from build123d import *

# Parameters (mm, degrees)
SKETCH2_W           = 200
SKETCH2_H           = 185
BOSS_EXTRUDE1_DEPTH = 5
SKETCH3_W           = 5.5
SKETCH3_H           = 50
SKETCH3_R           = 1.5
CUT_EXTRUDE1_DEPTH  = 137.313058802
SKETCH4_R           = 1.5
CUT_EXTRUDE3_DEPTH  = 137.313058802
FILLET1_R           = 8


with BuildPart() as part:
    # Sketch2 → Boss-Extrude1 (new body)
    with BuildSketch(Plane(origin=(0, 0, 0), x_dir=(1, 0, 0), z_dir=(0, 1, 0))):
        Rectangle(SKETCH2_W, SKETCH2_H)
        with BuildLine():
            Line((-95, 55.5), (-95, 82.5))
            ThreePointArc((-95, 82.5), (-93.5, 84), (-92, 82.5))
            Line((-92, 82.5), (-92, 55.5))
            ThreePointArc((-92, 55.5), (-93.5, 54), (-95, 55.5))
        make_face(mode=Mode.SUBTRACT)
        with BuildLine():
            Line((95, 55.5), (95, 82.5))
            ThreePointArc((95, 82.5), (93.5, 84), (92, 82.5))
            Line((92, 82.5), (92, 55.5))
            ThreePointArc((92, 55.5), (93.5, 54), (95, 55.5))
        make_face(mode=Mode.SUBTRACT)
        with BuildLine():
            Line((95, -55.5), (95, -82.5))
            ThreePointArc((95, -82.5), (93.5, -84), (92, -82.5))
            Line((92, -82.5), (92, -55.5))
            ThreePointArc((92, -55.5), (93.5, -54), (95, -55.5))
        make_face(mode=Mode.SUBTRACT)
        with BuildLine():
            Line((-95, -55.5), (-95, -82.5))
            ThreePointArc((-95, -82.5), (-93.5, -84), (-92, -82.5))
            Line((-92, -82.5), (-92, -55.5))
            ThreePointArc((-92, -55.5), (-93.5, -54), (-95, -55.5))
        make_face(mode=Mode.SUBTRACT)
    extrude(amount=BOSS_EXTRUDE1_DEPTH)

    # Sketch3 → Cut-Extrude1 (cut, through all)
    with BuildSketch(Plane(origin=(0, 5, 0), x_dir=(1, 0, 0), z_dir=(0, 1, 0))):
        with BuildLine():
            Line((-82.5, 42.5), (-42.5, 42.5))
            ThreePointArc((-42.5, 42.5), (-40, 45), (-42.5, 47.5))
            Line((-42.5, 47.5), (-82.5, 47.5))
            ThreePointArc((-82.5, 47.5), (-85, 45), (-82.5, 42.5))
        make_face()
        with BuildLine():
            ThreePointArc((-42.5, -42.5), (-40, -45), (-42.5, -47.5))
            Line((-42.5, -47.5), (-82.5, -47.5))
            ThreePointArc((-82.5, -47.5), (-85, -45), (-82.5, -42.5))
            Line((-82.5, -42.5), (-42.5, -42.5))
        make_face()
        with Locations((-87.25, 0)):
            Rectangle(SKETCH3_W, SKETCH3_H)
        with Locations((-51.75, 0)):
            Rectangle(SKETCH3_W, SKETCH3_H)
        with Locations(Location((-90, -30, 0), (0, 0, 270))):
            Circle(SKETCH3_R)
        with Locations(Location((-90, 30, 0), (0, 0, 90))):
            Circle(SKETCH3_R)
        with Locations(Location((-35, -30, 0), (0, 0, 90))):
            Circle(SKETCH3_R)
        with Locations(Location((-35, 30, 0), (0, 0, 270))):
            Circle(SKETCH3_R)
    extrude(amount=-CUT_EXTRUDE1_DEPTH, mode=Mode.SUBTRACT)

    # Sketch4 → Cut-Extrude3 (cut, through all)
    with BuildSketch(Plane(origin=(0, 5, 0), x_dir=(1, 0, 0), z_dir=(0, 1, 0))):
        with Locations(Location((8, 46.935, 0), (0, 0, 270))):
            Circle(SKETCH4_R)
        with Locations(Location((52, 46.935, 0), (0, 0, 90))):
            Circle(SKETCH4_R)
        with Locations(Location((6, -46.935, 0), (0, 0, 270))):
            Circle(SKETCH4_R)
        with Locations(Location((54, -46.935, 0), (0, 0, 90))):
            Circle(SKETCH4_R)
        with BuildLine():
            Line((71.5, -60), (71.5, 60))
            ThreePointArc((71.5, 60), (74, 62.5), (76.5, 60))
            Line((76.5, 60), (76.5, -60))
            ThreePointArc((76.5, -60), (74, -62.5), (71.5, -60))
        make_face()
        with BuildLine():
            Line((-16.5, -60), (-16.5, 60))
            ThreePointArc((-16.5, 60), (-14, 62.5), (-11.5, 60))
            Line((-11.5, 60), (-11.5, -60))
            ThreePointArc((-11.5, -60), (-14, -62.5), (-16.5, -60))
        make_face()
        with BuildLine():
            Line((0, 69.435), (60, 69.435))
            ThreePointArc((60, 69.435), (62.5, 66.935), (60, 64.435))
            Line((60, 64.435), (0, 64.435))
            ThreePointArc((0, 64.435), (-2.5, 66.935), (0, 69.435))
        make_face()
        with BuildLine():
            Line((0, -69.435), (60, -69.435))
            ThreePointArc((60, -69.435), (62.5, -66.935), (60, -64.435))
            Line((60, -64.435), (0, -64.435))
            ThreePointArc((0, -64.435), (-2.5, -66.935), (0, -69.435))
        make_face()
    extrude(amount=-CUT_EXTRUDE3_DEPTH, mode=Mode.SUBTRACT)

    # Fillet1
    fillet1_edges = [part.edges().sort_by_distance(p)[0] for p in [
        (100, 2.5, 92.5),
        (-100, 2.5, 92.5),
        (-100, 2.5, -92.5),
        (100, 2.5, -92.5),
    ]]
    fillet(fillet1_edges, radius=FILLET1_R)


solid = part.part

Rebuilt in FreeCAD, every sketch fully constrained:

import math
import FreeCAD as App
import Part
import Sketcher

V = App.Vector
Q = App.Units.Quantity


def edges_at(feature, points):
    """Names of the edges that pass closest to the given points."""
    edges = feature.Shape.Edges
    near = lambda p: min(range(len(edges)), key=lambda i: edges[i].distToShape(Part.Vertex(*p))[0])
    return sorted({f"Edge{near(p) + 1}" for p in points})


def add_polygon(sketch, points):
    """Adds a closed chain of lines whose ends are joined by coincident constraints."""
    first, n = sketch.GeometryCount, len(points)
    for a, b in zip(points, points[1:] + points[:1]):
        sketch.addGeometry(Part.LineSegment(App.Vector(*a, 0), App.Vector(*b, 0)), False)
    for i in range(n):
        sketch.addConstraint(Sketcher.Constraint("Coincident", first + i, 2, first + (i + 1) % n, 1))

doc = App.newDocument("Part")
body = doc.addObject("PartDesign::Body", "Body")

# Sketch on XZ plane
sketch1 = body.newObject("Sketcher::SketchObject", "Sketch")
sketch1.AttachmentSupport = (doc.getObject("XZ_Plane"), [""])
sketch1.MapMode = "FlatFace"
add_polygon(sketch1, [(-100, -92.5), (-100, 92.5), (100, 92.5), (100, -92.5)])  # lines 0-3
sketch1.addGeometry(Part.LineSegment(V(-95, 82.5, 0), V(-95, 55.5, 0)), False)  # 4
sketch1.addGeometry(Part.ArcOfCircle(Part.Circle(V(-93.5, 55.5, 0), V(0, 0, 1), 1.5), math.radians(180), math.radians(360)), False)  # 5
sketch1.addGeometry(Part.LineSegment(V(-92, 55.5, 0), V(-92, 82.5, 0)), False)  # 6
sketch1.addGeometry(Part.ArcOfCircle(Part.Circle(V(-93.5, 82.5, 0), V(0, 0, 1), 1.5), math.radians(0), math.radians(180)), False)  # 7
sketch1.addGeometry(Part.ArcOfCircle(Part.Circle(V(93.5, 55.5, 0), V(0, 0, 1), 1.5), math.radians(180), math.radians(360)), False)  # 8
sketch1.addGeometry(Part.LineSegment(V(95, 55.5, 0), V(95, 82.5, 0)), False)  # 9
sketch1.addGeometry(Part.ArcOfCircle(Part.Circle(V(93.5, 82.5, 0), V(0, 0, 1), 1.5), math.radians(0), math.radians(180)), False)  # 10
sketch1.addGeometry(Part.LineSegment(V(92, 82.5, 0), V(92, 55.5, 0)), False)  # 11
sketch1.addGeometry(Part.ArcOfCircle(Part.Circle(V(-93.5, -55.5, 0), V(0, 0, 1), 1.5), math.radians(0), math.radians(180)), False)  # 12
sketch1.addGeometry(Part.LineSegment(V(-95, -55.5, 0), V(-95, -82.5, 0)), False)  # 13
sketch1.addGeometry(Part.ArcOfCircle(Part.Circle(V(-93.5, -82.5, 0), V(0, 0, 1), 1.5), math.radians(180), math.radians(360)), False)  # 14
sketch1.addGeometry(Part.LineSegment(V(-92, -82.5, 0), V(-92, -55.5, 0)), False)  # 15
sketch1.addGeometry(Part.LineSegment(V(95, -82.5, 0), V(95, -55.5, 0)), False)  # 16
sketch1.addGeometry(Part.ArcOfCircle(Part.Circle(V(93.5, -55.5, 0), V(0, 0, 1), 1.5), math.radians(0), math.radians(180)), False)  # 17
sketch1.addGeometry(Part.LineSegment(V(92, -55.5, 0), V(92, -82.5, 0)), False)  # 18
sketch1.addGeometry(Part.ArcOfCircle(Part.Circle(V(93.5, -82.5, 0), V(0, 0, 1), 1.5), math.radians(180), math.radians(360)), False)  # 19
sketch1.addConstraint([
    Sketcher.Constraint("Tangent", 4, 2, 5, 1),
    Sketcher.Constraint("Tangent", 5, 2, 6, 1),
    Sketcher.Constraint("Tangent", 6, 2, 7, 1),
    Sketcher.Constraint("Tangent", 7, 2, 4, 1),
    Sketcher.Constraint("Tangent", 8, 2, 9, 1),
    Sketcher.Constraint("Tangent", 9, 2, 10, 1),
    Sketcher.Constraint("Tangent", 10, 2, 11, 1),
    Sketcher.Constraint("Tangent", 11, 2, 8, 1),
    Sketcher.Constraint("Tangent", 12, 2, 13, 1),
    Sketcher.Constraint("Tangent", 13, 2, 14, 1),
    Sketcher.Constraint("Tangent", 14, 2, 15, 1),
    Sketcher.Constraint("Tangent", 15, 2, 12, 1),
    Sketcher.Constraint("Tangent", 16, 2, 17, 1),
    Sketcher.Constraint("Tangent", 17, 2, 18, 1),
    Sketcher.Constraint("Tangent", 18, 2, 19, 1),
    Sketcher.Constraint("Tangent", 19, 2, 16, 1),
    Sketcher.Constraint("Vertical", 0),
    Sketcher.Constraint("Horizontal", 1),
    Sketcher.Constraint("Vertical", 2),
    Sketcher.Constraint("Horizontal", 3),
    Sketcher.Constraint("Vertical", 4),
    Sketcher.Constraint("Vertical", 6),
    Sketcher.Constraint("Vertical", 9),
    Sketcher.Constraint("Vertical", 11),
    Sketcher.Constraint("Vertical", 13),
    Sketcher.Constraint("Vertical", 15),
    Sketcher.Constraint("Vertical", 16),
    Sketcher.Constraint("Vertical", 18),
    Sketcher.Constraint("Equal", 7, 8),
    Sketcher.Constraint("Equal", 10, 12),
    Sketcher.Constraint("Equal", 14, 17),
    Sketcher.Constraint("Symmetric", 8, 3, 12, 3, -1, 1),
    Sketcher.Constraint("Symmetric", 5, 3, 17, 3, -1, 1),
    Sketcher.Constraint("Symmetric", 0, 2, 2, 2, -1, 1),
    Sketcher.Constraint("Symmetric", 5, 3, 8, 3, -2),
    Sketcher.Constraint("Horizontal", 7, 3, 10, 3),
    Sketcher.Constraint("Horizontal", 14, 3, 19, 3),
    Sketcher.Constraint("Equal", 11, 13),
    Sketcher.Constraint("Radius", 5, Q("1.5 mm")),
    Sketcher.Constraint("DistanceX", 1, 1, 1, 2, Q("200 mm")),
    Sketcher.Constraint("DistanceY", 0, 1, 0, 2, Q("185 mm")),
    Sketcher.Constraint("DistanceY", 4, 2, 4, 1, Q("27 mm")),
    Sketcher.Constraint("DistanceX", 4, 2, -1, 1, Q("95 mm")),
    Sketcher.Constraint("DistanceY", 12, 3, 5, 3, Q("111 mm")),
])
pad1 = body.newObject("PartDesign::Pad", "Pad")
pad1.Profile = sketch1
pad1.Length = 5
pad1.Reversed = True

# Sketch on XZ plane
sketch2 = body.newObject("Sketcher::SketchObject", "Sketch001")
sketch2.AttachmentSupport = (doc.getObject("XZ_Plane"), [""])
sketch2.MapMode = "FlatFace"
sketch2.AttachmentOffset = App.Placement(V(0, 0, -5), App.Rotation())
sketch2.addGeometry(Part.LineSegment(V(-82.5, -42.5, 0), V(-42.5, -42.5, 0)), False)  # 0
sketch2.addGeometry(Part.ArcOfCircle(Part.Circle(V(-42.5, -45, 0), V(0, 0, 1), 2.5), math.radians(-90), math.radians(90)), False)  # 1
sketch2.addGeometry(Part.LineSegment(V(-42.5, -47.5, 0), V(-82.5, -47.5, 0)), False)  # 2
sketch2.addGeometry(Part.ArcOfCircle(Part.Circle(V(-82.5, -45, 0), V(0, 0, 1), 2.5), math.radians(90), math.radians(270)), False)  # 3
sketch2.addGeometry(Part.ArcOfCircle(Part.Circle(V(-42.5, 45, 0), V(0, 0, 1), 2.5), math.radians(-90), math.radians(90)), False)  # 4
sketch2.addGeometry(Part.LineSegment(V(-42.5, 42.5, 0), V(-82.5, 42.5, 0)), False)  # 5
sketch2.addGeometry(Part.ArcOfCircle(Part.Circle(V(-82.5, 45, 0), V(0, 0, 1), 2.5), math.radians(90), math.radians(270)), False)  # 6
sketch2.addGeometry(Part.LineSegment(V(-82.5, 47.5, 0), V(-42.5, 47.5, 0)), False)  # 7
add_polygon(sketch2, [(-90, -25), (-90, 25), (-84.5, 25), (-84.5, -25)])  # lines 8-11
add_polygon(sketch2, [(-54.5, -25), (-54.5, 25), (-49, 25), (-49, -25)])  # lines 12-15
sketch2.addGeometry(Part.Circle(V(-90, 30, 0), V(0, 0, 1), 1.5), False)  # 16
sketch2.addGeometry(Part.Circle(V(-90, -30, 0), V(0, 0, 1), 1.5), False)  # 17
sketch2.addGeometry(Part.Circle(V(-35, 30, 0), V(0, 0, 1), 1.5), False)  # 18
sketch2.addGeometry(Part.Circle(V(-35, -30, 0), V(0, 0, 1), 1.5), False)  # 19
sketch2.addConstraint([
    Sketcher.Constraint("Tangent", 0, 2, 1, 2),
    Sketcher.Constraint("Tangent", 1, 1, 2, 1),
    Sketcher.Constraint("Tangent", 2, 2, 3, 2),
    Sketcher.Constraint("Tangent", 3, 1, 0, 1),
    Sketcher.Constraint("Tangent", 4, 1, 5, 1),
    Sketcher.Constraint("Tangent", 5, 2, 6, 2),
    Sketcher.Constraint("Tangent", 6, 1, 7, 1),
    Sketcher.Constraint("Tangent", 7, 2, 4, 2),
    Sketcher.Constraint("Horizontal", 0),
    Sketcher.Constraint("Horizontal", 2),
    Sketcher.Constraint("Horizontal", 5),
    Sketcher.Constraint("Horizontal", 7),
    Sketcher.Constraint("Vertical", 8),
    Sketcher.Constraint("Horizontal", 9),
    Sketcher.Constraint("Vertical", 10),
    Sketcher.Constraint("Horizontal", 11),
    Sketcher.Constraint("Vertical", 12),
    Sketcher.Constraint("Horizontal", 13),
    Sketcher.Constraint("Vertical", 14),
    Sketcher.Constraint("Horizontal", 15),
    Sketcher.Constraint("Equal", 3, 4),
    Sketcher.Constraint("Equal", 16, 17),
    Sketcher.Constraint("Equal", 17, 18),
    Sketcher.Constraint("Equal", 18, 19),
    Sketcher.Constraint("Symmetric", 1, 3, 4, 3, -1),
    Sketcher.Constraint("Symmetric", 16, 3, 17, 3, -1),
    Sketcher.Constraint("Symmetric", 18, 3, 19, 3, -1),
    Sketcher.Constraint("Horizontal", 16, 3, 18, 3),
    Sketcher.Constraint("Horizontal", 9, 2, 12, 2),
    Sketcher.Constraint("Horizontal", 11, 2, 14, 2),
    Sketcher.Constraint("Vertical", 3, 3, 6, 3),
    Sketcher.Constraint("Vertical", 17, 3, 8, 2),
    Sketcher.Constraint("Equal", 11, 13),
    Sketcher.Constraint("Diameter", 16, Q("3 mm")),
    Sketcher.Constraint("Radius", 1, Q("2.5 mm")),
    Sketcher.Constraint("DistanceX", 0, 1, 0, 2, Q("40 mm")),
    Sketcher.Constraint("DistanceY", 8, 1, 8, 2, Q("50 mm")),
    Sketcher.Constraint("DistanceX", 9, 1, 9, 2, Q("5.5 mm")),
    Sketcher.Constraint("DistanceY", 1, 3, -1, 1, Q("45 mm")),
    Sketcher.Constraint("DistanceX", 16, 3, -1, 1, Q("90 mm")),
    Sketcher.Constraint("DistanceY", -1, 1, 16, 3, Q("30 mm")),
    Sketcher.Constraint("DistanceX", 18, 3, -1, 1, Q("35 mm")),
    Sketcher.Constraint("DistanceY", -1, 1, 8, 2, Q("25 mm")),
    Sketcher.Constraint("DistanceX", 13, 2, -1, 1, Q("49 mm")),
    Sketcher.Constraint("DistanceX", 9, 2, 5, 2, Q("2 mm")),
])
pocket1 = body.newObject("PartDesign::Pocket", "Pocket")
pocket1.Profile = sketch2
pocket1.Type = "ThroughAll"
pocket1.Reversed = True

# Sketch on XZ plane
sketch3 = body.newObject("Sketcher::SketchObject", "Sketch002")
sketch3.AttachmentSupport = (doc.getObject("XZ_Plane"), [""])
sketch3.MapMode = "FlatFace"
sketch3.AttachmentOffset = App.Placement(V(0, 0, -5), App.Rotation())
sketch3.addGeometry([
    Part.Circle(V(8, -46.935, 0), V(0, 0, 1), 1.5),  # 0
    Part.Circle(V(52, -46.935, 0), V(0, 0, 1), 1.5),  # 1
    Part.Circle(V(6, 46.935, 0), V(0, 0, 1), 1.5),  # 2
    Part.Circle(V(54, 46.935, 0), V(0, 0, 1), 1.5),  # 3
    Part.LineSegment(V(71.5, -60, 0), V(71.5, 60, 0)),  # 4
    Part.ArcOfCircle(Part.Circle(V(74, 60, 0), V(0, 0, 1), 2.5), math.radians(0), math.radians(180)),  # 5
    Part.LineSegment(V(76.5, 60, 0), V(76.5, -60, 0)),  # 6
    Part.ArcOfCircle(Part.Circle(V(74, -60, 0), V(0, 0, 1), 2.5), math.radians(180), math.radians(360)),  # 7
    Part.LineSegment(V(-16.5, -60, 0), V(-16.5, 60, 0)),  # 8
    Part.ArcOfCircle(Part.Circle(V(-14, 60, 0), V(0, 0, 1), 2.5), math.radians(0), math.radians(180)),  # 9
    Part.LineSegment(V(-11.5, 60, 0), V(-11.5, -60, 0)),  # 10
    Part.ArcOfCircle(Part.Circle(V(-14, -60, 0), V(0, 0, 1), 2.5), math.radians(180), math.radians(360)),  # 11
    Part.LineSegment(V(60, -69.435, 0), V(0, -69.435, 0)),  # 12
    Part.ArcOfCircle(Part.Circle(V(0, -66.935, 0), V(0, 0, 1), 2.5), math.radians(90), math.radians(270)),  # 13
    Part.LineSegment(V(0, -64.435, 0), V(60, -64.435, 0)),  # 14
    Part.ArcOfCircle(Part.Circle(V(60, -66.935, 0), V(0, 0, 1), 2.5), math.radians(-90), math.radians(90)),  # 15
    Part.LineSegment(V(0, 69.435, 0), V(60, 69.435, 0)),  # 16
    Part.ArcOfCircle(Part.Circle(V(60, 66.935, 0), V(0, 0, 1), 2.5), math.radians(-90), math.radians(90)),  # 17
    Part.LineSegment(V(60, 64.435, 0), V(0, 64.435, 0)),  # 18
    Part.ArcOfCircle(Part.Circle(V(0, 66.935, 0), V(0, 0, 1), 2.5), math.radians(90), math.radians(270)),  # 19
], False)
sketch3.addConstraint([
    Sketcher.Constraint("Tangent", 4, 2, 5, 2),
    Sketcher.Constraint("Tangent", 5, 1, 6, 1),
    Sketcher.Constraint("Tangent", 6, 2, 7, 2),
    Sketcher.Constraint("Tangent", 7, 1, 4, 1),
    Sketcher.Constraint("Tangent", 8, 2, 9, 2),
    Sketcher.Constraint("Tangent", 9, 1, 10, 1),
    Sketcher.Constraint("Tangent", 10, 2, 11, 2),
    Sketcher.Constraint("Tangent", 11, 1, 8, 1),
    Sketcher.Constraint("Tangent", 12, 2, 13, 2),
    Sketcher.Constraint("Tangent", 13, 1, 14, 1),
    Sketcher.Constraint("Tangent", 14, 2, 15, 2),
    Sketcher.Constraint("Tangent", 15, 1, 12, 1),
    Sketcher.Constraint("Tangent", 16, 2, 17, 2),
    Sketcher.Constraint("Tangent", 17, 1, 18, 1),
    Sketcher.Constraint("Tangent", 18, 2, 19, 2),
    Sketcher.Constraint("Tangent", 19, 1, 16, 1),
    Sketcher.Constraint("Vertical", 4),
    Sketcher.Constraint("Vertical", 6),
    Sketcher.Constraint("Vertical", 8),
    Sketcher.Constraint("Vertical", 10),
    Sketcher.Constraint("Horizontal", 12),
    Sketcher.Constraint("Horizontal", 14),
    Sketcher.Constraint("Horizontal", 16),
    Sketcher.Constraint("Horizontal", 18),
    Sketcher.Constraint("Equal", 0, 1),
    Sketcher.Constraint("Equal", 1, 2),
    Sketcher.Constraint("Equal", 2, 3),
    Sketcher.Constraint("Equal", 7, 9),
    Sketcher.Constraint("Equal", 11, 13),
    Sketcher.Constraint("Equal", 15, 17),
    Sketcher.Constraint("Symmetric", 13, 3, 19, 3, -1, 1),
    Sketcher.Constraint("PointOnObject", 13, 3, -2),
    Sketcher.Constraint("Horizontal", 0, 3, 1, 3),
    Sketcher.Constraint("Horizontal", 2, 3, 3, 3),
    Sketcher.Constraint("Horizontal", 5, 3, 9, 3),
    Sketcher.Constraint("Horizontal", 7, 3, 11, 3),
    Sketcher.Constraint("Vertical", 15, 3, 17, 3),
    Sketcher.Constraint("Diameter", 0, Q("3 mm")),
    Sketcher.Constraint("Radius", 5, Q("2.5 mm")),
    Sketcher.Constraint("DistanceX", 12, 2, 12, 1, Q("60 mm")),
    Sketcher.Constraint("DistanceY", 4, 1, 4, 2, Q("120 mm")),
    Sketcher.Constraint("DistanceX", -1, 1, 0, 3, Q("8 mm")),
    Sketcher.Constraint("DistanceX", -1, 1, 1, 3, Q("52 mm")),
    Sketcher.Constraint("DistanceX", -1, 1, 2, 3, Q("6 mm")),
    Sketcher.Constraint("DistanceX", -1, 1, 3, 3, Q("54 mm")),
    Sketcher.Constraint("DistanceX", -1, 1, 5, 3, Q("74 mm")),
    Sketcher.Constraint("DistanceY", -1, 1, 5, 3, Q("60 mm")),
    Sketcher.Constraint("DistanceX", 9, 3, -1, 1, Q("14 mm")),
    Sketcher.Constraint("DistanceY", 13, 3, 0, 3, Q("20 mm")),
    Sketcher.Constraint("DistanceY", 3, 3, 17, 3, Q("20 mm")),
    Sketcher.Constraint("DistanceY", 0, 3, 2, 3, Q("93.87 mm")),
])
pocket2 = body.newObject("PartDesign::Pocket", "Pocket001")
pocket2.Profile = sketch3
pocket2.Type = "ThroughAll"
pocket2.Reversed = True
doc.recompute()

fillet = body.newObject("PartDesign::Fillet", "Fillet")
fillet.Base = (pocket2, edges_at(pocket2, [
    (100, 2.5, 92.5),
    (-100, 2.5, 92.5),
    (-100, 2.5, -92.5),
    (100, 2.5, -92.5),
]))
fillet.Radius = 8

doc.recompute()
